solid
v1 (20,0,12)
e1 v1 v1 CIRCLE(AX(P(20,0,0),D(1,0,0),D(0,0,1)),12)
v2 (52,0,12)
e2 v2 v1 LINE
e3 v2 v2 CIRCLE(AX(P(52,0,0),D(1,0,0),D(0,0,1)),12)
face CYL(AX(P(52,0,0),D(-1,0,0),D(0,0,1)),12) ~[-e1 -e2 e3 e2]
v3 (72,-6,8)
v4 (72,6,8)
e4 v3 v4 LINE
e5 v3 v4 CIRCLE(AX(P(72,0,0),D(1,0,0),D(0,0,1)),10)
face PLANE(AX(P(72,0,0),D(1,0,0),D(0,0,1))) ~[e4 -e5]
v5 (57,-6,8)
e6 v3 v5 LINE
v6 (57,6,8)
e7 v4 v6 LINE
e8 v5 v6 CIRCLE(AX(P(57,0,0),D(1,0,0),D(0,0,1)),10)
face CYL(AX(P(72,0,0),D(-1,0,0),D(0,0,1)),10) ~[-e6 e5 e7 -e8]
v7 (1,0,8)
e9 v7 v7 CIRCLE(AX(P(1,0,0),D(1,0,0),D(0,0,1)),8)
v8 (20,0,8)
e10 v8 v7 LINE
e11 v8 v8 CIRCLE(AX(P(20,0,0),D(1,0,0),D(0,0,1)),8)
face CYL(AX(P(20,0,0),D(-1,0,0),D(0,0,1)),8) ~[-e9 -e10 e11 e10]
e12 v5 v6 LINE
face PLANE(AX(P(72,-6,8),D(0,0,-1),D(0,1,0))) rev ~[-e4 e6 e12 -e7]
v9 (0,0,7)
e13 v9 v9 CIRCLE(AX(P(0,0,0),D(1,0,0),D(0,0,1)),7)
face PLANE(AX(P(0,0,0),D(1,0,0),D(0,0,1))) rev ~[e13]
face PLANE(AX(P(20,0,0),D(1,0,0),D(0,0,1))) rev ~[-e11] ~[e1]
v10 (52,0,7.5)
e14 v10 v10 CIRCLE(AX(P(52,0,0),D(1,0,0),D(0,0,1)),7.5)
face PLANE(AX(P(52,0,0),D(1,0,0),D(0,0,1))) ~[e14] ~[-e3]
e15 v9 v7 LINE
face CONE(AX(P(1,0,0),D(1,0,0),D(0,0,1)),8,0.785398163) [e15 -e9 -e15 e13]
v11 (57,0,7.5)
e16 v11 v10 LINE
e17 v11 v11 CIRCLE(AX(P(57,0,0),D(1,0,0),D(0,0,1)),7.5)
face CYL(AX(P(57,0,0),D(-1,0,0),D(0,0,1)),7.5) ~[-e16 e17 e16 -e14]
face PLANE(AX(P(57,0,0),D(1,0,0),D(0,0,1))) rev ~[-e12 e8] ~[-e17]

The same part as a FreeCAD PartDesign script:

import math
import FreeCAD as App
import Part
import Sketcher


def edges_at(feature, points):
    """Names of the edges that pass closest to the given points."""
    edges = feature.Shape.Edges
    near = lambda p: min(range(len(edges)), key=lambda i: edges[i].distToShape(Part.Vertex(*p))[0])
    return sorted({f"Edge{near(p) + 1}" for p in points})


def add_polygon(sketch, points):
    """Adds a closed chain of lines whose ends are joined by coincident constraints."""
    first, n = sketch.GeometryCount, len(points)
    for a, b in zip(points, points[1:] + points[:1]):
        sketch.addGeometry(Part.LineSegment(App.Vector(*a, 0), App.Vector(*b, 0)), False)
    for i in range(n):
        sketch.addConstraint(Sketcher.Constraint("Coincident", first + i, 2, first + (i + 1) % n, 1))

doc = App.newDocument("Part")
body = doc.addObject("PartDesign::Body", "Body")

sketch1 = body.newObject("Sketcher::SketchObject", "Sketch")
sketch1.AttachmentSupport = (doc.getObject("XZ_Plane"), [""])
sketch1.MapMode = "FlatFace"
add_polygon(sketch1, [(0, 8), (0, 0), (72, 0), (72, 10), (57, 10), (57, 7.5), (52, 7.5), (52, 12), (20, 12), (20, 8)])
sketch1.addConstraint([
    Sketcher.Constraint("Vertical", 0),
    Sketcher.Constraint("Horizontal", 1),
    Sketcher.Constraint("Vertical", 2),
    Sketcher.Constraint("Horizontal", 3),
    Sketcher.Constraint("Vertical", 4),
    Sketcher.Constraint("Horizontal", 5),
    Sketcher.Constraint("Vertical", 6),
    Sketcher.Constraint("Horizontal", 7),
    Sketcher.Constraint("Vertical", 8),
    Sketcher.Constraint("Horizontal", 9),
    Sketcher.Constraint("Coincident", 0, 2, -1, 1),
    Sketcher.Constraint("DistanceX", 1, 1, 1, 2, 72.0),
    Sketcher.Constraint("DistanceX", 3, 2, 3, 1, 15.0),
    Sketcher.Constraint("DistanceX", 5, 2, 5, 1, 5.0),
    Sketcher.Constraint("DistanceX", 7, 2, 7, 1, 32.0),
    Sketcher.Constraint("DistanceY", 0, 2, 0, 1, 8.0),
    Sketcher.Constraint("DistanceY", 2, 1, 2, 2, 10.0),
    Sketcher.Constraint("DistanceY", 8, 2, 8, 1, 4.0),
    Sketcher.Constraint("DistanceY", 4, 2, 4, 1, 2.5),
])
revolution = body.newObject("PartDesign::Revolution", "Revolution")
revolution.Profile = sketch1
revolution.ReferenceAxis = (sketch1, ["H_Axis"])
revolution.Angle = 360
doc.recompute()

chamfer = body.newObject("PartDesign::Chamfer", "Chamfer")
chamfer.Base = (revolution, edges_at(revolution, [(0, 0, -8)]))
chamfer.Size = 1

sketch2 = body.newObject("Sketcher::SketchObject", "Sketch001")
sketch2.AttachmentSupport = (doc.getObject("YZ_Plane"), [""])
sketch2.MapMode = "FlatFace"
sketch2.AttachmentOffset = App.Placement(App.Vector(0, 0, 72), App.Rotation())
sketch2.addGeometry([
    Part.LineSegment(App.Vector(-6, 8, 0), App.Vector(6, 8, 0)),
    Part.ArcOfCircle(Part.Circle(App.Vector(0, 0, 0), App.Vector(0, 0, 1), 10), math.radians(53.130102), math.radians(126.869898)),
], False)
sketch2.addConstraint([
    Sketcher.Constraint("Coincident", 0, 1, 1, 2),
    Sketcher.Constraint("Coincident", 1, 1, 0, 2),
    Sketcher.Constraint("Horizontal", 0),
    Sketcher.Constraint("Coincident", 1, 3, -1, 1),
    Sketcher.Constraint("Radius", 1, 10.0),
    Sketcher.Constraint("DistanceX", 0, 1, 0, 2, 12.0),
])
pocket1 = body.newObject("PartDesign::Pocket", "Pocket")
pocket1.Profile = sketch2
pocket1.Length = 15

doc.recompute()
